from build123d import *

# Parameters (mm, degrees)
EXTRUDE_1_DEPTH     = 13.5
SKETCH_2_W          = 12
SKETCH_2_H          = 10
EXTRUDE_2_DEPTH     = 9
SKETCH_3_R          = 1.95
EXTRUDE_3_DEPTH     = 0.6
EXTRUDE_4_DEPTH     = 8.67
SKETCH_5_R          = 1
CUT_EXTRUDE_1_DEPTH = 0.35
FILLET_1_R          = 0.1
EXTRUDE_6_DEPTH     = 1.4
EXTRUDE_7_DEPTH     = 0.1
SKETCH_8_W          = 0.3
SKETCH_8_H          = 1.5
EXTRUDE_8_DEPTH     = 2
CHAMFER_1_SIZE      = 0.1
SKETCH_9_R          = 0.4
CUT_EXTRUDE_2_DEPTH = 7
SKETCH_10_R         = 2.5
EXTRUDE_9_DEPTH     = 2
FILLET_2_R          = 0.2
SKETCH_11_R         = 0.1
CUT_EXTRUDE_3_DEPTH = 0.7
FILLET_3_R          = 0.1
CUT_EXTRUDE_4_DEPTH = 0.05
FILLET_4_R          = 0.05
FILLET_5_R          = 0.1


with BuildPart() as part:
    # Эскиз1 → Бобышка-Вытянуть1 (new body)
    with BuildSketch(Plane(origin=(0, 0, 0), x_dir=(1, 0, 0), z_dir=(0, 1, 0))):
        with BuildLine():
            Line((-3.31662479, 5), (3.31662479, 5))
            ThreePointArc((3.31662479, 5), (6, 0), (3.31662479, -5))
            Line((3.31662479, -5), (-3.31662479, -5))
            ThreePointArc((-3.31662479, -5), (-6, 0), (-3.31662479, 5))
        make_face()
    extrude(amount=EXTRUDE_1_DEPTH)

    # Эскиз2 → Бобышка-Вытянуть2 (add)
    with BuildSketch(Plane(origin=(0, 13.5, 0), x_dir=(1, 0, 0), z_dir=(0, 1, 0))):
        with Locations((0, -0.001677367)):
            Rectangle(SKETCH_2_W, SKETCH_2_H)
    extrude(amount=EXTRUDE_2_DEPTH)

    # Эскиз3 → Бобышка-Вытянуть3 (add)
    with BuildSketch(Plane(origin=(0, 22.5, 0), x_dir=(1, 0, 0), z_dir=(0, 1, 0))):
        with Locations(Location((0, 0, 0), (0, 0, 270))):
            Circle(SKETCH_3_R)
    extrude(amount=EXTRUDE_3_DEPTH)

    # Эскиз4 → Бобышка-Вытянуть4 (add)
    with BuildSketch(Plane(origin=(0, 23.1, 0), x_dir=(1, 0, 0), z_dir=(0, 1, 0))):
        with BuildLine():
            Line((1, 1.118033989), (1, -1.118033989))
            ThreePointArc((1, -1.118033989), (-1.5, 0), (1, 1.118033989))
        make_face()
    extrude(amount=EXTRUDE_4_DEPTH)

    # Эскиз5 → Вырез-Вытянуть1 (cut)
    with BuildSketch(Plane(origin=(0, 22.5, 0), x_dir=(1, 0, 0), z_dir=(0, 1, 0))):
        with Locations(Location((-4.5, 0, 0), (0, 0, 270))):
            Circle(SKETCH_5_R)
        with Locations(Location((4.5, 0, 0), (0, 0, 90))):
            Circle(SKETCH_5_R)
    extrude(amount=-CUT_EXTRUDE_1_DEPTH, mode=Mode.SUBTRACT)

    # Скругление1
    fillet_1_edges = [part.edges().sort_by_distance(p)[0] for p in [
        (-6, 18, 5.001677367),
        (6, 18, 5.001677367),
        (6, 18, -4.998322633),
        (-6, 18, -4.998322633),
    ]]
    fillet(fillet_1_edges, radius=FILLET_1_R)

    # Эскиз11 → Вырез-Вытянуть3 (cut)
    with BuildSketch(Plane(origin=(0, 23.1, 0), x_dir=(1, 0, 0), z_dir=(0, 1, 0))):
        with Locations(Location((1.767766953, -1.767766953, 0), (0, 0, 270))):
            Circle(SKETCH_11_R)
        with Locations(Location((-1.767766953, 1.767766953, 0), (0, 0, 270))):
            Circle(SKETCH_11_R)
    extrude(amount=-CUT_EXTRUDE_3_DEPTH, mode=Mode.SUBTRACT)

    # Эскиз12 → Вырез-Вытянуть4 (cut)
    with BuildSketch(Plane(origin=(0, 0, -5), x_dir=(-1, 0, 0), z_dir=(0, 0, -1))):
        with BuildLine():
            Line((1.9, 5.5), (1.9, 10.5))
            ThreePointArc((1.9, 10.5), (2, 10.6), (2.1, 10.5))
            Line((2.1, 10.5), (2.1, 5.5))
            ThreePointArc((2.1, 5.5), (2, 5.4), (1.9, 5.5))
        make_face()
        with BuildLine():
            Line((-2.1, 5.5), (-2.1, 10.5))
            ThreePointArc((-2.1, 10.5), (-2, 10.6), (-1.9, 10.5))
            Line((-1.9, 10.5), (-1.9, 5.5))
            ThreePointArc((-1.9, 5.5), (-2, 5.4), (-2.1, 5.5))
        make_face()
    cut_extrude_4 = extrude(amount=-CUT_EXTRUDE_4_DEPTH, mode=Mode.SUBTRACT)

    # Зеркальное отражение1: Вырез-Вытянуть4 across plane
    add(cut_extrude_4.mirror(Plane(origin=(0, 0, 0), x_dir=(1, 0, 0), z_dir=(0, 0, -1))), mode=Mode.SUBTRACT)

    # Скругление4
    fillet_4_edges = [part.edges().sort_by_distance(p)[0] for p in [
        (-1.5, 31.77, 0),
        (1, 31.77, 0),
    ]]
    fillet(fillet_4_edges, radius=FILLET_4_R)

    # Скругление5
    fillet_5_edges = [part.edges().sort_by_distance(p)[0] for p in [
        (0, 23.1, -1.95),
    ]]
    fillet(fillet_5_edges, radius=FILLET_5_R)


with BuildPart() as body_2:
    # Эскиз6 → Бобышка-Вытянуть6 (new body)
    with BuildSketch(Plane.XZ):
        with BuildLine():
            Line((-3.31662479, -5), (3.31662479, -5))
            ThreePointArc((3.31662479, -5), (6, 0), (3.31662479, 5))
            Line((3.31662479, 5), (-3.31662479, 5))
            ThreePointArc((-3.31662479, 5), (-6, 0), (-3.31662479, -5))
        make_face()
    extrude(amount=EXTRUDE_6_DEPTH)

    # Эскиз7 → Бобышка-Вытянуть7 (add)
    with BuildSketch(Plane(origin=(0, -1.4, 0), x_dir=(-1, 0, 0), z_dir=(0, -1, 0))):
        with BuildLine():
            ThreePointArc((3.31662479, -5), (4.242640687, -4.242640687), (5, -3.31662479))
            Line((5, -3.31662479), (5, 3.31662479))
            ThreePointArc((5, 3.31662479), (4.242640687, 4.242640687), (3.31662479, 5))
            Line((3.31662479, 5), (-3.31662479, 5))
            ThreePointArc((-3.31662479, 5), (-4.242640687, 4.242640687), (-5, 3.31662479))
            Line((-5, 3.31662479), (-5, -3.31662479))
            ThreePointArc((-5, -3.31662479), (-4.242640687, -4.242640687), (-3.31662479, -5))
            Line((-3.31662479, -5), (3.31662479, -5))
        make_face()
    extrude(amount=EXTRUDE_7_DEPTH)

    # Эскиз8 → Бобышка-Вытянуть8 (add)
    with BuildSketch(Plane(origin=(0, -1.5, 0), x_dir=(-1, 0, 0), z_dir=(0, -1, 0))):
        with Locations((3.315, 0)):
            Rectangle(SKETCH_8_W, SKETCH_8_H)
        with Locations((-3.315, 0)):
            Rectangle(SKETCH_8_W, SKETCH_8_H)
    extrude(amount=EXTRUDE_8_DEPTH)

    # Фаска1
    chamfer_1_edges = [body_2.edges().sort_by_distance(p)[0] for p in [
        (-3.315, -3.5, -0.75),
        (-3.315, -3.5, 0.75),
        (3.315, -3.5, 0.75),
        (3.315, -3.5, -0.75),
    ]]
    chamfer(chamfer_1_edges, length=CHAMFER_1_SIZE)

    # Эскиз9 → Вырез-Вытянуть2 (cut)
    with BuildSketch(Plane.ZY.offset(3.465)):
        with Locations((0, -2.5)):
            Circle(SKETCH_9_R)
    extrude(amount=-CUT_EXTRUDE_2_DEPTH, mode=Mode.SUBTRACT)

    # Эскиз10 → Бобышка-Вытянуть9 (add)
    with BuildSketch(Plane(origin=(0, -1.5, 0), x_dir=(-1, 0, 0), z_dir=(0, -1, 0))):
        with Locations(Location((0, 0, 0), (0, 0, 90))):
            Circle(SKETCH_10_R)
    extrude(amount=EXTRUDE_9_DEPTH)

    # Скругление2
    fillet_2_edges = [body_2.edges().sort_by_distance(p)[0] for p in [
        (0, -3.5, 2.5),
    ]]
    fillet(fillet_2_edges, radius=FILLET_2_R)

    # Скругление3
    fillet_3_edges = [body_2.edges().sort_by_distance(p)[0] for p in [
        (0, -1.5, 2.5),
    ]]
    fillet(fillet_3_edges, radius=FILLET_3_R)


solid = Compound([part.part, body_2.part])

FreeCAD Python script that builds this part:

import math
import FreeCAD as App
import Part
import Sketcher
Q = App.Units.Quantity


def edges_at(feature, points):
    """Names of the edges that pass closest to the given points."""
    edges = feature.Shape.Edges
    near = lambda p: min(range(len(edges)), key=lambda i: edges[i].distToShape(Part.Vertex(*p))[0])
    return sorted({f"Edge{near(p) + 1}" for p in points})

doc = App.newDocument("Part")
body = doc.addObject("PartDesign::Body", "Body")

# Sketch on XZ plane
sketch1 = body.newObject("Sketcher::SketchObject", "Sketch")
sketch1.AttachmentSupport = (doc.getObject("XZ_Plane"), [""])
sketch1.MapMode = "FlatFace"
sketch1.addGeometry(Part.LineSegment(App.Vector(3, -5, 0), App.Vector(-3, -5, 0)), False)
sketch1.addGeometry(Part.ArcOfCircle(Part.Circle(App.Vector(0, 0, 0), App.Vector(0, 0, 1), 6), math.radians(124), math.radians(236)), False)
sketch1.addGeometry(Part.LineSegment(App.Vector(-3, 5, 0), App.Vector(3, 5, 0)), False)
sketch1.addGeometry(Part.ArcOfCircle(Part.Circle(App.Vector(0, 0, 0), App.Vector(0, 0, 1), 6), math.radians(-56), math.radians(56)), False)
sketch1.addConstraint(Sketcher.Constraint("Coincident", 0, 2, 1, 2))
sketch1.addConstraint(Sketcher.Constraint("Coincident", 1, 1, 2, 1))
sketch1.addConstraint(Sketcher.Constraint("Coincident", 2, 2, 3, 2))
sketch1.addConstraint(Sketcher.Constraint("Coincident", 3, 1, 0, 1))
sketch1.addConstraint(Sketcher.Constraint("Horizontal", 0))
sketch1.addConstraint(Sketcher.Constraint("Horizontal", 2))
sketch1.addConstraint(Sketcher.Constraint("Coincident", 1, 3, -1, 1))
sketch1.addConstraint(Sketcher.Constraint("Coincident", 3, 3, -1, 1))
sketch1.addConstraint(Sketcher.Constraint("Equal", 1, 3))
sketch1.addConstraint(Sketcher.Constraint("Vertical", 0, 2, 1, 1))
sketch1.addConstraint(Sketcher.Constraint("Radius", 1, Q("6 mm")))
sketch1.addConstraint(Sketcher.Constraint("DistanceY", 0, 2, -1, 1, Q("5 mm")))
pad1 = body.newObject("PartDesign::Pad", "Pad")
pad1.Profile = sketch1
pad1.Length = 13.5
pad1.Reversed = True

# Sketch on XZ plane
sketch2 = body.newObject("Sketcher::SketchObject", "Sketch001")
sketch2.AttachmentSupport = (doc.getObject("XZ_Plane"), [""])
sketch2.MapMode = "FlatFace"
sketch2.AttachmentOffset = App.Placement(App.Vector(0, 0, -13.5), App.Rotation())
sketch2.addGeometry(Part.LineSegment(App.Vector(-6, -5, 0), App.Vector(-6, 5, 0)), False)
sketch2.addGeometry(Part.LineSegment(App.Vector(-6, 5, 0), App.Vector(6, 5, 0)), False)
sketch2.addGeometry(Part.LineSegment(App.Vector(6, 5, 0), App.Vector(6, -5, 0)), False)
sketch2.addGeometry(Part.LineSegment(App.Vector(6, -5, 0), App.Vector(-6, -5, 0)), False)
sketch2.addConstraint(Sketcher.Constraint("Coincident", 0, 2, 1, 1))
sketch2.addConstraint(Sketcher.Constraint("Coincident", 1, 2, 2, 1))
sketch2.addConstraint(Sketcher.Constraint("Coincident", 2, 2, 3, 1))
sketch2.addConstraint(Sketcher.Constraint("Coincident", 3, 2, 0, 1))
sketch2.addConstraint(Sketcher.Constraint("Vertical", 0))
sketch2.addConstraint(Sketcher.Constraint("Horizontal", 1))
sketch2.addConstraint(Sketcher.Constraint("Vertical", 2))
sketch2.addConstraint(Sketcher.Constraint("Horizontal", 3))
sketch2.addConstraint(Sketcher.Constraint("DistanceX", 1, 1, 1, 2, Q("12 mm")))
sketch2.addConstraint(Sketcher.Constraint("DistanceY", 0, 1, 0, 2, Q("10 mm")))
sketch2.addConstraint(Sketcher.Constraint("DistanceX", 0, 2, -1, 1, Q("6 mm")))
sketch2.addConstraint(Sketcher.Constraint("DistanceY", -1, 1, 0, 2, Q("5.001677 mm")))
pad2 = body.newObject("PartDesign::Pad", "Pad001")
pad2.Profile = sketch2
pad2.Length = 9
pad2.Reversed = True

# Sketch on XZ plane
sketch3 = body.newObject("Sketcher::SketchObject", "Sketch002")
sketch3.AttachmentSupport = (doc.getObject("XZ_Plane"), [""])
sketch3.MapMode = "FlatFace"
sketch3.AttachmentOffset = App.Placement(App.Vector(0, 0, -22.5), App.Rotation())
sketch3.addGeometry(Part.Circle(App.Vector(0, 0, 0), App.Vector(0, 0, 1), 1.9), False)
sketch3.addConstraint(Sketcher.Constraint("Coincident", 0, 3, -1, 1))
sketch3.addConstraint(Sketcher.Constraint("Diameter", 0, Q("3.9 mm")))
pad3 = body.newObject("PartDesign::Pad", "Pad002")
pad3.Profile = sketch3
pad3.Length = 0.6
pad3.Reversed = True

# Sketch on XZ plane
sketch4 = body.newObject("Sketcher::SketchObject", "Sketch003")
sketch4.AttachmentSupport = (doc.getObject("XZ_Plane"), [""])
sketch4.MapMode = "FlatFace"
sketch4.AttachmentOffset = App.Placement(App.Vector(0, 0, -23.1), App.Rotation())
sketch4.addGeometry(Part.LineSegment(App.Vector(1, 1.1, 0), App.Vector(1, -1.1, 0)), False)
sketch4.addGeometry(Part.ArcOfCircle(Part.Circle(App.Vector(0, 0, 0), App.Vector(0, 0, 1), 1.5), math.radians(48), math.radians(312)), False)
sketch4.addConstraint(Sketcher.Constraint("Coincident", 0, 1, 1, 1))
sketch4.addConstraint(Sketcher.Constraint("Coincident", 1, 2, 0, 2))
sketch4.addConstraint(Sketcher.Constraint("Vertical", 0))
sketch4.addConstraint(Sketcher.Constraint("Coincident", 1, 3, -1, 1))
sketch4.addConstraint(Sketcher.Constraint("Radius", 1, Q("1.5 mm")))
sketch4.addConstraint(Sketcher.Constraint("DistanceX", -1, 1, 0, 1, Q("1 mm")))
pad4 = body.newObject("PartDesign::Pad", "Pad003")
pad4.Profile = sketch4
pad4.Length = 8.67
pad4.Reversed = True

# Sketch on XZ plane
sketch5 = body.newObject("Sketcher::SketchObject", "Sketch004")
sketch5.AttachmentSupport = (doc.getObject("XZ_Plane"), [""])
sketch5.MapMode = "FlatFace"
sketch5.AttachmentOffset = App.Placement(App.Vector(0, 0, -22.5), App.Rotation())
sketch5.addGeometry(Part.Circle(App.Vector(-4.5, 0, 0), App.Vector(0, 0, 1), 1), False)
sketch5.addGeometry(Part.Circle(App.Vector(4.5, 0, 0), App.Vector(0, 0, 1), 1), False)
sketch5.addConstraint(Sketcher.Constraint("Equal", 0, 1))
sketch5.addConstraint(Sketcher.Constraint("Symmetric", 0, 3, 1, 3, -1, 1))
sketch5.addConstraint(Sketcher.Constraint("PointOnObject", 0, 3, -1))
sketch5.addConstraint(Sketcher.Constraint("Diameter", 0, Q("2 mm")))
sketch5.addConstraint(Sketcher.Constraint("DistanceX", 0, 3, 1, 3, Q("9 mm")))
pocket1 = body.newObject("PartDesign::Pocket", "Pocket")
pocket1.Profile = sketch5
pocket1.Length = 0.35
pocket1.Reversed = True
doc.recompute()

fillet = body.newObject("PartDesign::Fillet", "Fillet")
fillet.Base = (pocket1, edges_at(pocket1, [
    (-6, 18, 5.002),
    (6, 18, 5.002),
    (6, 18, -4.998),
    (-6, 18, -4.998),
]))
fillet.Radius = 0.1

# Sketch on XZ plane
sketch6 = body.newObject("Sketcher::SketchObject", "Sketch005")
sketch6.AttachmentSupport = (doc.getObject("XZ_Plane"), [""])
sketch6.MapMode = "FlatFace"
sketch6.AttachmentOffset = App.Placement(App.Vector(0, 0, -23.1), App.Rotation())
sketch6.addGeometry(Part.Circle(App.Vector(1.77, 1.77, 0), App.Vector(0, 0, 1), 0.1), False)
sketch6.addGeometry(Part.Circle(App.Vector(-1.77, -1.77, 0), App.Vector(0, 0, 1), 0.1), False)
sketch6.addConstraint(Sketcher.Constraint("Equal", 0, 1))
sketch6.addConstraint(Sketcher.Constraint("Symmetric", 0, 3, 1, 3, -1, 1))
sketch6.addConstraint(Sketcher.Constraint("Diameter", 0, Q("0.2 mm")))
sketch6.addConstraint(Sketcher.Constraint("DistanceX", -1, 1, 0, 3, Q("1.767767 mm")))
sketch6.addConstraint(Sketcher.Constraint("DistanceY", -1, 1, 0, 3, Q("1.767767 mm")))
pocket2 = body.newObject("PartDesign::Pocket", "Pocket001")
pocket2.Profile = sketch6
pocket2.Length = 0.7
pocket2.Reversed = True

# Sketch on XY plane
sketch7 = body.newObject("Sketcher::SketchObject", "Sketch006")
sketch7.AttachmentSupport = (doc.getObject("XY_Plane"), [""])
sketch7.MapMode = "FlatFace"
sketch7.AttachmentOffset = App.Placement(App.Vector(0, 0, -5), App.Rotation())
sketch7.addGeometry(Part.LineSegment(App.Vector(-1.9, 10.5, 0), App.Vector(-1.9, 5.5, 0)), False)
sketch7.addGeometry(Part.ArcOfCircle(Part.Circle(App.Vector(-2, 5.5, 0), App.Vector(0, 0, 1), 0.1), math.radians(180), math.radians(360)), False)
sketch7.addGeometry(Part.LineSegment(App.Vector(-2.1, 5.5, 0), App.Vector(-2.1, 10.5, 0)), False)
sketch7.addGeometry(Part.ArcOfCircle(Part.Circle(App.Vector(-2, 10.5, 0), App.Vector(0, 0, 1), 0.1), math.radians(0), math.radians(180)), False)
sketch7.addGeometry(Part.LineSegment(App.Vector(2.1, 10.5, 0), App.Vector(2.1, 5.5, 0)), False)
sketch7.addGeometry(Part.ArcOfCircle(Part.Circle(App.Vector(2, 5.5, 0), App.Vector(0, 0, 1), 0.1), math.radians(180), math.radians(360)), False)
sketch7.addGeometry(Part.LineSegment(App.Vector(1.9, 5.5, 0), App.Vector(1.9, 10.5, 0)), False)
sketch7.addGeometry(Part.ArcOfCircle(Part.Circle(App.Vector(2, 10.5, 0), App.Vector(0, 0, 1), 0.1), math.radians(0), math.radians(180)), False)
sketch7.addConstraint(Sketcher.Constraint("Tangent", 0, 2, 1, 2))
sketch7.addConstraint(Sketcher.Constraint("Tangent", 1, 1, 2, 1))
sketch7.addConstraint(Sketcher.Constraint("Tangent", 2, 2, 3, 2))
sketch7.addConstraint(Sketcher.Constraint("Tangent", 3, 1, 0, 1))
sketch7.addConstraint(Sketcher.Constraint("Tangent", 4, 2, 5, 2))
sketch7.addConstraint(Sketcher.Constraint("Tangent", 5, 1, 6, 1))
sketch7.addConstraint(Sketcher.Constraint("Tangent", 6, 2, 7, 2))
sketch7.addConstraint(Sketcher.Constraint("Tangent", 7, 1, 4, 1))
sketch7.addConstraint(Sketcher.Constraint("Vertical", 0))
sketch7.addConstraint(Sketcher.Constraint("Vertical", 2))
sketch7.addConstraint(Sketcher.Constraint("Vertical", 4))
sketch7.addConstraint(Sketcher.Constraint("Vertical", 6))
sketch7.addConstraint(Sketcher.Constraint("Equal", 3, 5))
sketch7.addConstraint(Sketcher.Constraint("Symmetric", 1, 3, 5, 3, -2))
sketch7.addConstraint(Sketcher.Constraint("Horizontal", 3, 3, 7, 3))
sketch7.addConstraint(Sketcher.Constraint("Radius", 1, Q("0.1 mm")))
sketch7.addConstraint(Sketcher.Constraint("DistanceY", 0, 2, 0, 1, Q("5 mm")))
sketch7.addConstraint(Sketcher.Constraint("DistanceX", 1, 3, -1, 1, Q("2 mm")))
sketch7.addConstraint(Sketcher.Constraint("DistanceY", -1, 1, 1, 3, Q("5.5 mm")))
pocket3 = body.newObject("PartDesign::Pocket", "Pocket002")
pocket3.Profile = sketch7
pocket3.Length = 0.05
pocket3.Reversed = True
doc.recompute()

mirrored = body.newObject("PartDesign::Mirrored", "Mirrored")
mirrored.Originals = [pocket3]
mirrored.MirrorPlane = (doc.getObject("XY_Plane"), [""])
body.Tip = mirrored
doc.recompute()

fillet2 = body.newObject("PartDesign::Fillet", "Fillet001")
fillet2.Base = (mirrored, edges_at(mirrored, [(-1.5, 31.77, 0), (1, 31.77, 0)]))
fillet2.Radius = 0.05
doc.recompute()

fillet3 = body.newObject("PartDesign::Fillet", "Fillet002")
fillet3.Base = (fillet2, edges_at(fillet2, [(0, 23.1, -1.95)]))
fillet3.Radius = 0.1
body2 = doc.addObject("PartDesign::Body", "Body001")

# Sketch on XZ plane
sketch8 = body2.newObject("Sketcher::SketchObject", "Sketch007")
sketch8.AttachmentSupport = (doc.getObject("XZ_Plane001"), [""])
sketch8.MapMode = "FlatFace"
sketch8.addGeometry(Part.LineSegment(App.Vector(-3, -5, 0), App.Vector(3, -5, 0)), False)
sketch8.addGeometry(Part.ArcOfCircle(Part.Circle(App.Vector(0, 0, 0), App.Vector(0, 0, 1), 6), math.radians(-56), math.radians(56)), False)
sketch8.addGeometry(Part.LineSegment(App.Vector(3, 5, 0), App.Vector(-3, 5, 0)), False)
sketch8.addGeometry(Part.ArcOfCircle(Part.Circle(App.Vector(0, 0, 0), App.Vector(0, 0, 1), 6), math.radians(124), math.radians(236)), False)
sketch8.addConstraint(Sketcher.Constraint("Coincident", 0, 2, 1, 1))
sketch8.addConstraint(Sketcher.Constraint("Coincident", 1, 2, 2, 1))
sketch8.addConstraint(Sketcher.Constraint("Coincident", 2, 2, 3, 1))
sketch8.addConstraint(Sketcher.Constraint("Coincident", 3, 2, 0, 1))
sketch8.addConstraint(Sketcher.Constraint("Horizontal", 0))
sketch8.addConstraint(Sketcher.Constraint("Horizontal", 2))
sketch8.addConstraint(Sketcher.Constraint("Coincident", 1, 3, -1, 1))
sketch8.addConstraint(Sketcher.Constraint("Coincident", 3, 3, -1, 1))
sketch8.addConstraint(Sketcher.Constraint("Equal", 1, 3))
sketch8.addConstraint(Sketcher.Constraint("Vertical", 0, 2, 1, 2))
sketch8.addConstraint(Sketcher.Constraint("Radius", 1, Q("6 mm")))
sketch8.addConstraint(Sketcher.Constraint("DistanceY", 0, 2, -1, 1, Q("5 mm")))
pad5 = body2.newObject("PartDesign::Pad", "Pad004")
pad5.Profile = sketch8
pad5.Length = 1.4

# Sketch on XZ plane
sketch9 = body2.newObject("Sketcher::SketchObject", "Sketch008")
sketch9.AttachmentSupport = (doc.getObject("XZ_Plane001"), [""])
sketch9.MapMode = "FlatFace"
sketch9.AttachmentOffset = App.Placement(App.Vector(0, 0, 1.4), App.Rotation())
sketch9.addGeometry(Part.ArcOfCircle(Part.Circle(App.Vector(0, 0, 0), App.Vector(0, 0, 1), 6), math.radians(124), math.radians(146)), False)
sketch9.addGeometry(Part.LineSegment(App.Vector(-5, 3.3, 0), App.Vector(-5, -3.3, 0)), False)
sketch9.addGeometry(Part.ArcOfCircle(Part.Circle(App.Vector(0, 0, 0), App.Vector(0, 0, 1), 6), math.radians(-146), math.radians(-124)), False)
sketch9.addGeometry(Part.LineSegment(App.Vector(-3.3, -5, 0), App.Vector(3.3, -5, 0)), False)
sketch9.addGeometry(Part.ArcOfCircle(Part.Circle(App.Vector(0, 0, 0), App.Vector(0, 0, 1), 6), math.radians(-56), math.radians(-34)), False)
sketch9.addGeometry(Part.LineSegment(App.Vector(5, -3.3, 0), App.Vector(5, 3.3, 0)), False)
sketch9.addGeometry(Part.ArcOfCircle(Part.Circle(App.Vector(0, 0, 0), App.Vector(0, 0, 1), 6), math.radians(34), math.radians(56)), False)
sketch9.addGeometry(Part.LineSegment(App.Vector(3.3, 5, 0), App.Vector(-3.3, 5, 0)), False)
sketch9.addConstraint(Sketcher.Constraint("Coincident", 0, 2, 1, 1))
sketch9.addConstraint(Sketcher.Constraint("Coincident", 1, 2, 2, 1))
sketch9.addConstraint(Sketcher.Constraint("Coincident", 2, 2, 3, 1))
sketch9.addConstraint(Sketcher.Constraint("Coincident", 3, 2, 4, 1))
sketch9.addConstraint(Sketcher.Constraint("Coincident", 4, 2, 5, 1))
sketch9.addConstraint(Sketcher.Constraint("Coincident", 5, 2, 6, 1))
sketch9.addConstraint(Sketcher.Constraint("Coincident", 6, 2, 7, 1))
sketch9.addConstraint(Sketcher.Constraint("Coincident", 7, 2, 0, 1))
sketch9.addConstraint(Sketcher.Constraint("Vertical", 1))
sketch9.addConstraint(Sketcher.Constraint("Horizontal", 3))
sketch9.addConstraint(Sketcher.Constraint("Vertical", 5))
sketch9.addConstraint(Sketcher.Constraint("Horizontal", 7))
sketch9.addConstraint(Sketcher.Constraint("Coincident", 0, 3, -1, 1))
sketch9.addConstraint(Sketcher.Constraint("Coincident", 2, 3, -1, 1))
sketch9.addConstraint(Sketcher.Constraint("Coincident", 4, 3, -1, 1))
sketch9.addConstraint(Sketcher.Constraint("Coincident", 6, 3, -1, 1))
sketch9.addConstraint(Sketcher.Constraint("Equal", 0, 2))
sketch9.addConstraint(Sketcher.Constraint("Equal", 2, 4))
sketch9.addConstraint(Sketcher.Constraint("Equal", 4, 6))
sketch9.addConstraint(Sketcher.Constraint("Horizontal", 1, 2, 4, 2))
sketch9.addConstraint(Sketcher.Constraint("Vertical", 3, 2, 6, 2))
sketch9.addConstraint(Sketcher.Constraint("Equal", 7, 1))
sketch9.addConstraint(Sketcher.Constraint("Radius", 0, Q("6 mm")))
sketch9.addConstraint(Sketcher.Constraint("DistanceX", 0, 2, -1, 1, Q("5 mm")))
pad6 = body2.newObject("PartDesign::Pad", "Pad005")
pad6.Profile = sketch9
pad6.Length = 0.1

# Sketch on XZ plane
sketch10 = body2.newObject("Sketcher::SketchObject", "Sketch009")
sketch10.AttachmentSupport = (doc.getObject("XZ_Plane001"), [""])
sketch10.MapMode = "FlatFace"
sketch10.AttachmentOffset = App.Placement(App.Vector(0, 0, 1.5), App.Rotation())
sketch10.addGeometry(Part.LineSegment(App.Vector(-3.17, -0.75, 0), App.Vector(-3.17, 0.75, 0)), False)
sketch10.addGeometry(Part.LineSegment(App.Vector(-3.17, 0.75, 0), App.Vector(-3.46, 0.75, 0)), False)
sketch10.addGeometry(Part.LineSegment(App.Vector(-3.46, 0.75, 0), App.Vector(-3.46, -0.75, 0)), False)
sketch10.addGeometry(Part.LineSegment(App.Vector(-3.46, -0.75, 0), App.Vector(-3.17, -0.75, 0)), False)
sketch10.addGeometry(Part.LineSegment(App.Vector(3.46, -0.75, 0), App.Vector(3.46, 0.75, 0)), False)
sketch10.addGeometry(Part.LineSegment(App.Vector(3.46, 0.75, 0), App.Vector(3.17, 0.75, 0)), False)
sketch10.addGeometry(Part.LineSegment(App.Vector(3.17, 0.75, 0), App.Vector(3.17, -0.75, 0)), False)
sketch10.addGeometry(Part.LineSegment(App.Vector(3.17, -0.75, 0), App.Vector(3.46, -0.75, 0)), False)
sketch10.addConstraint(Sketcher.Constraint("Coincident", 0, 2, 1, 1))
sketch10.addConstraint(Sketcher.Constraint("Coincident", 1, 2, 2, 1))
sketch10.addConstraint(Sketcher.Constraint("Coincident", 2, 2, 3, 1))
sketch10.addConstraint(Sketcher.Constraint("Coincident", 3, 2, 0, 1))
sketch10.addConstraint(Sketcher.Constraint("Coincident", 4, 2, 5, 1))
sketch10.addConstraint(Sketcher.Constraint("Coincident", 5, 2, 6, 1))
sketch10.addConstraint(Sketcher.Constraint("Coincident", 6, 2, 7, 1))
sketch10.addConstraint(Sketcher.Constraint("Coincident", 7, 2, 4, 1))
sketch10.addConstraint(Sketcher.Constraint("Vertical", 0))
sketch10.addConstraint(Sketcher.Constraint("Horizontal", 1))
sketch10.addConstraint(Sketcher.Constraint("Vertical", 2))
sketch10.addConstraint(Sketcher.Constraint("Horizontal", 3))
sketch10.addConstraint(Sketcher.Constraint("Vertical", 4))
sketch10.addConstraint(Sketcher.Constraint("Horizontal", 5))
sketch10.addConstraint(Sketcher.Constraint("Vertical", 6))
sketch10.addConstraint(Sketcher.Constraint("Horizontal", 7))
sketch10.addConstraint(Sketcher.Constraint("Symmetric", 2, 2, 4, 2, -1, 1))
sketch10.addConstraint(Sketcher.Constraint("Symmetric", 0, 2, 6, 2, -1, 1))
sketch10.addConstraint(Sketcher.Constraint("Horizontal", 1, 2, 4, 2))
sketch10.addConstraint(Sketcher.Constraint("DistanceX", 1, 2, 1, 1, Q("0.3 mm")))
sketch10.addConstraint(Sketcher.Constraint("DistanceY", 0, 1, 0, 2, Q("1.5 mm")))
sketch10.addConstraint(Sketcher.Constraint("DistanceX", 0, 2, 4, 2, Q("6.63 mm")))
pad7 = body2.newObject("PartDesign::Pad", "Pad006")
pad7.Profile = sketch10
pad7.Length = 2
doc.recompute()

chamfer = body2.newObject("PartDesign::Chamfer", "Chamfer")
chamfer.Base = (pad7, edges_at(pad7, [
    (-3.315, -3.5, -0.75),
    (-3.315, -3.5, 0.75),
    (3.315, -3.5, 0.75),
    (3.315, -3.5, -0.75),
]))
chamfer.Size = 0.1

# Sketch on YZ plane
sketch11 = body2.newObject("Sketcher::SketchObject", "Sketch010")
sketch11.AttachmentSupport = (doc.getObject("YZ_Plane001"), [""])
sketch11.MapMode = "FlatFace"
sketch11.AttachmentOffset = App.Placement(App.Vector(0, 0, -3.465), App.Rotation())
sketch11.addGeometry(Part.Circle(App.Vector(-2.5, 0, 0), App.Vector(0, 0, 1), 0.4), False)
sketch11.addConstraint(Sketcher.Constraint("PointOnObject", 0, 3, -1))
sketch11.addConstraint(Sketcher.Constraint("Diameter", 0, Q("0.8 mm")))
sketch11.addConstraint(Sketcher.Constraint("DistanceX", 0, 3, -1, 1, Q("2.5 mm")))
pocket4 = body2.newObject("PartDesign::Pocket", "Pocket003")
pocket4.Profile = sketch11
pocket4.Length = 7
pocket4.Reversed = True

# Sketch on XZ plane
sketch12 = body2.newObject("Sketcher::SketchObject", "Sketch011")
sketch12.AttachmentSupport = (doc.getObject("XZ_Plane001"), [""])
sketch12.MapMode = "FlatFace"
sketch12.AttachmentOffset = App.Placement(App.Vector(0, 0, 1.5), App.Rotation())
sketch12.addGeometry(Part.Circle(App.Vector(0, 0, 0), App.Vector(0, 0, 1), 2.5), False)
sketch12.addConstraint(Sketcher.Constraint("Coincident", 0, 3, -1, 1))
sketch12.addConstraint(Sketcher.Constraint("Diameter", 0, Q("5 mm")))
pad8 = body2.newObject("PartDesign::Pad", "Pad007")
pad8.Profile = sketch12
pad8.Length = 2
doc.recompute()

fillet4 = body2.newObject("PartDesign::Fillet", "Fillet003")
fillet4.Base = (pad8, edges_at(pad8, [(0, -3.5, 2.5)]))
fillet4.Radius = 0.2
doc.recompute()

fillet5 = body2.newObject("PartDesign::Fillet", "Fillet004")
fillet5.Base = (fillet4, edges_at(fillet4, [(0, -1.5, 2.5)]))
fillet5.Radius = 0.1

doc.recompute()
